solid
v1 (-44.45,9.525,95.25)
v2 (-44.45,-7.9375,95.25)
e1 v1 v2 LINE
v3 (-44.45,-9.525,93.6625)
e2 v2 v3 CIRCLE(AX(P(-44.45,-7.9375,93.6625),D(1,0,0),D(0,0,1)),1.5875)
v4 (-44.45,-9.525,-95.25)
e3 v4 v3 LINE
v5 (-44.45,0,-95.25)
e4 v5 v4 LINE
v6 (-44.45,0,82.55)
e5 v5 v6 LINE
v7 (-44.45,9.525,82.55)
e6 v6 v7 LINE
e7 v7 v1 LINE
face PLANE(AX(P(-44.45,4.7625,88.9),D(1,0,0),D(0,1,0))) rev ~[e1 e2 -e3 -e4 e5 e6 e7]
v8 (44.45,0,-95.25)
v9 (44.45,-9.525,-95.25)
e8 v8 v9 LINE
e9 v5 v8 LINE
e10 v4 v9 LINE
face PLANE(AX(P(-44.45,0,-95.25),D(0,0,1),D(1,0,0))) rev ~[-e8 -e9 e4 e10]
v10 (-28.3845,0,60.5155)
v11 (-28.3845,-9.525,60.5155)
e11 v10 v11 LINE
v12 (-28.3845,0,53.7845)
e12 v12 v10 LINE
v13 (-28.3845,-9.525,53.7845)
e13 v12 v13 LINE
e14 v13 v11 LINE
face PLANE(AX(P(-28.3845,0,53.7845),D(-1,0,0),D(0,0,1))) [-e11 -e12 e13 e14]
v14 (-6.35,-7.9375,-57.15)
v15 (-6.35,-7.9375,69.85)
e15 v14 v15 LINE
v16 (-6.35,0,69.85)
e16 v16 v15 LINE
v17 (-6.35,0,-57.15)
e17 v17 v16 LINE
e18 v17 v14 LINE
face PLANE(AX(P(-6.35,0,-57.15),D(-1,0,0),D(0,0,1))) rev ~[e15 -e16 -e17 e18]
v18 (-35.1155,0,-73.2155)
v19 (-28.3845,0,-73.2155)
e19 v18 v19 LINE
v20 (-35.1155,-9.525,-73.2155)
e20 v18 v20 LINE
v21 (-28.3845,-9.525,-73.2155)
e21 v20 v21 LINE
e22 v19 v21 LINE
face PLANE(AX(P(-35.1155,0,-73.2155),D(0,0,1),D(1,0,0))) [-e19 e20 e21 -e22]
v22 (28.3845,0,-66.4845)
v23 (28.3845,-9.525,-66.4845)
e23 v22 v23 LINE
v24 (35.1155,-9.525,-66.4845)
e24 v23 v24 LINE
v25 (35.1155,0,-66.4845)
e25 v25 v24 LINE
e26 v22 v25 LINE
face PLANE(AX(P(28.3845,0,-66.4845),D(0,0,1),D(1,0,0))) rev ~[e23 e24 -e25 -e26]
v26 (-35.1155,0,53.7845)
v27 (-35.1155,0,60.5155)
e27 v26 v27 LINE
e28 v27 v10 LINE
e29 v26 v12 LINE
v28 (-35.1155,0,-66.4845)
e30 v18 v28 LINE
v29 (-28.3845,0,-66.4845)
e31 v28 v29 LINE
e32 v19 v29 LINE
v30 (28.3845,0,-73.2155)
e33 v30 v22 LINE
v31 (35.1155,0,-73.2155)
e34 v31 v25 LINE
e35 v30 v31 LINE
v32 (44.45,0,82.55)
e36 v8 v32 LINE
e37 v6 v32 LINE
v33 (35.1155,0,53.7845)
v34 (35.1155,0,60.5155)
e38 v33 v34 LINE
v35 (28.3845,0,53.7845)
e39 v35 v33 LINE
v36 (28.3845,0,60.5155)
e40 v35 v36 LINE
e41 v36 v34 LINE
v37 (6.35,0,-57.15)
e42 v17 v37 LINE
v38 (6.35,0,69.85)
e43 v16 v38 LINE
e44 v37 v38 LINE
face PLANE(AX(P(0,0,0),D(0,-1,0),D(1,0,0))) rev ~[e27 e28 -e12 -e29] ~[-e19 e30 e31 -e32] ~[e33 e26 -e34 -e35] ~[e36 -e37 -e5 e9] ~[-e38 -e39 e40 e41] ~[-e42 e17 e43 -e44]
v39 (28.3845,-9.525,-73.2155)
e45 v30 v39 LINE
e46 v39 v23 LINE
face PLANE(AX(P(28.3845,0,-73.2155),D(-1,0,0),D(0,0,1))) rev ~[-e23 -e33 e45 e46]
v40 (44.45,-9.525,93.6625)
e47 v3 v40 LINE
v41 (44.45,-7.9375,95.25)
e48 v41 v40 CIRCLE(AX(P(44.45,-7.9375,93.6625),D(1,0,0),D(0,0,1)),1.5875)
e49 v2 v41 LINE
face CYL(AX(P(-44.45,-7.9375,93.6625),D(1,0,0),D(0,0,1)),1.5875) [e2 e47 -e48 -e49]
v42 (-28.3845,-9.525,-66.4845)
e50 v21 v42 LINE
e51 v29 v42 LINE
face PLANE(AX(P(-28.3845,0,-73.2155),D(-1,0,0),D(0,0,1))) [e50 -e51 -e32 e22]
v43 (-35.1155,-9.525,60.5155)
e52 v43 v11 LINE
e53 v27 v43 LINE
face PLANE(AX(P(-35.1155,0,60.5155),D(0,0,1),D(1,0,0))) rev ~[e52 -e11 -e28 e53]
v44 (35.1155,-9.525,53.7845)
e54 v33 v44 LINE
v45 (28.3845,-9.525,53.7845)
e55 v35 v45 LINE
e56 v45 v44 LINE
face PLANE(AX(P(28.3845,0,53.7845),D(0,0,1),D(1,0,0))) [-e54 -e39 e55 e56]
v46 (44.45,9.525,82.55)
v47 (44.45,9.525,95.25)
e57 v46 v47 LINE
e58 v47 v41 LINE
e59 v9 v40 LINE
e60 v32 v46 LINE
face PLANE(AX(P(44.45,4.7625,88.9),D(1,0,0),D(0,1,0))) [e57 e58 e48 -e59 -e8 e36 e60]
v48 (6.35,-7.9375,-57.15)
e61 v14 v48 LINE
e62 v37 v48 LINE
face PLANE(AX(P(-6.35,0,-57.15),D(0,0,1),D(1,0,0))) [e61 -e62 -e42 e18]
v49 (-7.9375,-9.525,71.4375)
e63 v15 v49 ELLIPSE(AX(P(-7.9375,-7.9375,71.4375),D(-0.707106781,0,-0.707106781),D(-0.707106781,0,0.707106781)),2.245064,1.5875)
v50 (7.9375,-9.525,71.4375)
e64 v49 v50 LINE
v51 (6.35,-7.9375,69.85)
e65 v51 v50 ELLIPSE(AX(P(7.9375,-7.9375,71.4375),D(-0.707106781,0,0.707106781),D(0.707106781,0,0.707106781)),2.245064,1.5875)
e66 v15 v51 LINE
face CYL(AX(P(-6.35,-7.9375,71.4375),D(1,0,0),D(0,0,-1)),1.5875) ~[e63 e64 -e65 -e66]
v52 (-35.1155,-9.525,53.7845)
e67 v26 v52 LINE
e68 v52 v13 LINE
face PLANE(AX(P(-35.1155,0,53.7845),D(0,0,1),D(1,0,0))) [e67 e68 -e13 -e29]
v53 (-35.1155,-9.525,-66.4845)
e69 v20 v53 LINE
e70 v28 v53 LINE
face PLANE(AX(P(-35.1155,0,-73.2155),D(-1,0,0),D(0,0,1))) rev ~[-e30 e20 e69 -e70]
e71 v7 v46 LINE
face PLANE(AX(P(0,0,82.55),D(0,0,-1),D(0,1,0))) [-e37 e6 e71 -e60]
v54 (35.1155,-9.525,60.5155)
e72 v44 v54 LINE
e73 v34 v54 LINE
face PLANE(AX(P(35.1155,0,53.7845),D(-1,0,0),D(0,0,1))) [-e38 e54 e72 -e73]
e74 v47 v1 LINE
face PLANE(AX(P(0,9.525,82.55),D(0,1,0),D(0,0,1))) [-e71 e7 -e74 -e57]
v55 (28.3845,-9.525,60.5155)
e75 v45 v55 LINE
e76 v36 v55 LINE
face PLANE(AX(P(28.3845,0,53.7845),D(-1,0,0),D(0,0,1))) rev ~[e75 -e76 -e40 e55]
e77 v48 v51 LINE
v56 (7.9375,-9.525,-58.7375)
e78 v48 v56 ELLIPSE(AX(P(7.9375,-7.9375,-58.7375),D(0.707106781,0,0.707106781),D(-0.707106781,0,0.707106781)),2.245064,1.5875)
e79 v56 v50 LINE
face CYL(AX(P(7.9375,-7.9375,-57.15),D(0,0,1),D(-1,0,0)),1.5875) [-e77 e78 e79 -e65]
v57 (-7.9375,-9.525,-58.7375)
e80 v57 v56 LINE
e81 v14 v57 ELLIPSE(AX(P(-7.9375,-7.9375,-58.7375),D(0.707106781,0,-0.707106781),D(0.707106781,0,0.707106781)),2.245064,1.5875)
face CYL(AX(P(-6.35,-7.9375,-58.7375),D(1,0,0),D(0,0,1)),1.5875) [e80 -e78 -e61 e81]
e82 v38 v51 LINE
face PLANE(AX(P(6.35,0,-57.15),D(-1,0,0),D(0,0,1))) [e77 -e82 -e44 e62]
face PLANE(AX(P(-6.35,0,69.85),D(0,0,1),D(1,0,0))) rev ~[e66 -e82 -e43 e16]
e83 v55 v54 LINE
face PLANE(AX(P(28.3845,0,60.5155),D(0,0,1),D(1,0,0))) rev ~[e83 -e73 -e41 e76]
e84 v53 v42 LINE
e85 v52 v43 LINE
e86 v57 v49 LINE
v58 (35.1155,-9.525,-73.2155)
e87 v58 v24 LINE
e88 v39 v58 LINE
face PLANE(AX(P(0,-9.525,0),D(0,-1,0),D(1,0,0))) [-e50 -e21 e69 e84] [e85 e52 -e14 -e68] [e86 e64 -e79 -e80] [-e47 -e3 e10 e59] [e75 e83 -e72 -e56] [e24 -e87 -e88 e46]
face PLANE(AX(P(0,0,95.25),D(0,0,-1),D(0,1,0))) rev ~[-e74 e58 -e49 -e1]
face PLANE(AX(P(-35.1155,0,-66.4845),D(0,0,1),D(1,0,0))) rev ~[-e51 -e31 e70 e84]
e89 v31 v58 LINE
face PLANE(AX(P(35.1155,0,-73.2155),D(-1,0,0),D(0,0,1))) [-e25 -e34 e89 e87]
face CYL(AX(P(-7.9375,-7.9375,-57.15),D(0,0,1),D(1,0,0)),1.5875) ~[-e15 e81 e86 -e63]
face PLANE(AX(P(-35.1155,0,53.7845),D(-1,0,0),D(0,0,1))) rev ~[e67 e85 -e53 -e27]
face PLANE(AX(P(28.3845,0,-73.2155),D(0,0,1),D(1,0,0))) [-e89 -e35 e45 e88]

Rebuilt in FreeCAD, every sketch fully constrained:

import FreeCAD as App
import Part
import Sketcher

V = App.Vector
Q = App.Units.Quantity


def edges_at(feature, points):
    """Names of the edges that pass closest to the given points."""
    edges = feature.Shape.Edges
    near = lambda p: min(range(len(edges)), key=lambda i: edges[i].distToShape(Part.Vertex(*p))[0])
    return sorted({f"Edge{near(p) + 1}" for p in points})


def add_polygon(sketch, points):
    """Adds a closed chain of lines whose ends are joined by coincident constraints."""
    first, n = sketch.GeometryCount, len(points)
    for a, b in zip(points, points[1:] + points[:1]):
        sketch.addGeometry(Part.LineSegment(App.Vector(*a, 0), App.Vector(*b, 0)), False)
    for i in range(n):
        sketch.addConstraint(Sketcher.Constraint("Coincident", first + i, 2, first + (i + 1) % n, 1))

doc = App.newDocument("Part")
body = doc.addObject("PartDesign::Body", "Body")

# Sketch on XZ plane
sketch1 = doc.addObject("Sketcher::SketchObject", "Sketch")
body.addObject(sketch1)
sketch1.AttachmentSupport = (doc.XZ_Plane, [""])
sketch1.MapMode = "FlatFace"
add_polygon(sketch1, [(-44.45, 95.25), (-44.45, -95.25), (44.45, -95.25), (44.45, 95.25)])  # lines 0-3
add_polygon(sketch1, [(-28.3845, -73.2155), (-35.1155, -73.2155), (-35.1155, -66.4845), (-28.3845, -66.4845)])  # lines 4-7
add_polygon(sketch1, [(35.1155, -73.2155), (28.3845, -73.2155), (28.3845, -66.4845), (35.1155, -66.4845)])  # lines 8-11
add_polygon(sketch1, [(-28.3845, 53.7845), (-35.1155, 53.7845), (-35.1155, 60.5155), (-28.3845, 60.5155)])  # lines 12-15
add_polygon(sketch1, [(6.35, -57.15), (-6.35, -57.15), (-6.35, 69.85), (6.35, 69.85)])  # lines 16-19
add_polygon(sketch1, [(35.1155, 53.7845), (28.3845, 53.7845), (28.3845, 60.5155), (35.1155, 60.5155)])  # lines 20-23
sketch1.addConstraint(Sketcher.Constraint("Vertical", 0))
sketch1.addConstraint(Sketcher.Constraint("Horizontal", 1))
sketch1.addConstraint(Sketcher.Constraint("Vertical", 2))
sketch1.addConstraint(Sketcher.Constraint("Horizontal", 3))
sketch1.addConstraint(Sketcher.Constraint("Horizontal", 4))
sketch1.addConstraint(Sketcher.Constraint("Vertical", 5))
sketch1.addConstraint(Sketcher.Constraint("Horizontal", 6))
sketch1.addConstraint(Sketcher.Constraint("Vertical", 7))
sketch1.addConstraint(Sketcher.Constraint("Horizontal", 8))
sketch1.addConstraint(Sketcher.Constraint("Vertical", 9))
sketch1.addConstraint(Sketcher.Constraint("Horizontal", 10))
sketch1.addConstraint(Sketcher.Constraint("Vertical", 11))
sketch1.addConstraint(Sketcher.Constraint("Horizontal", 12))
sketch1.addConstraint(Sketcher.Constraint("Vertical", 13))
sketch1.addConstraint(Sketcher.Constraint("Horizontal", 14))
sketch1.addConstraint(Sketcher.Constraint("Vertical", 15))
sketch1.addConstraint(Sketcher.Constraint("Horizontal", 16))
sketch1.addConstraint(Sketcher.Constraint("Vertical", 17))
sketch1.addConstraint(Sketcher.Constraint("Horizontal", 18))
sketch1.addConstraint(Sketcher.Constraint("Vertical", 19))
sketch1.addConstraint(Sketcher.Constraint("Horizontal", 20))
sketch1.addConstraint(Sketcher.Constraint("Vertical", 21))
sketch1.addConstraint(Sketcher.Constraint("Horizontal", 22))
sketch1.addConstraint(Sketcher.Constraint("Vertical", 23))
sketch1.addConstraint(Sketcher.Constraint("Symmetric", 0, 2, 2, 2, -1, 1))
sketch1.addConstraint(Sketcher.Constraint("Symmetric", 7, 2, 8, 2, -2))
sketch1.addConstraint(Sketcher.Constraint("Symmetric", 5, 2, 10, 2, -2))
sketch1.addConstraint(Sketcher.Constraint("Symmetric", 15, 2, 20, 2, -2))
sketch1.addConstraint(Sketcher.Constraint("Symmetric", 13, 2, 22, 2, -2))
sketch1.addConstraint(Sketcher.Constraint("Vertical", 5, 2, 12, 2))
sketch1.addConstraint(Sketcher.Constraint("Vertical", 7, 2, 14, 2))
sketch1.addConstraint(Sketcher.Constraint("Equal", 22, 5))
sketch1.addConstraint(Sketcher.Constraint("Equal", 11, 13))
sketch1.addConstraint(Sketcher.Constraint("DistanceY", 17, 1, 17, 2, Q("5 in")))
sketch1.addConstraint(Sketcher.Constraint("DistanceX", 1, 1, 1, 2, Q("3.5 in")))
sketch1.addConstraint(Sketcher.Constraint("DistanceX", 16, 2, 16, 1, Q("0.5 in")))
sketch1.addConstraint(Sketcher.Constraint("DistanceY", 0, 2, 0, 1, Q("7.5 in")))
sketch1.addConstraint(Sketcher.Constraint("DistanceY", 4, 2, 12, 2, Q("5 in")))
sketch1.addConstraint(Sketcher.Constraint("DistanceY", 17, 2, 3, 2, Q("1 in")))
sketch1.addConstraint(Sketcher.Constraint("DistanceX", 4, 2, 8, 2, Q("2.5 in")))
sketch1.addConstraint(Sketcher.Constraint("DistanceX", 3, 2, 17, 2, Q("1.5 in")))
sketch1.addConstraint(Sketcher.Constraint("DistanceX", 4, 2, 4, 1, Q("0.265 in")))
sketch1.addConstraint(Sketcher.Constraint("DistanceY", 4, 2, -1, 1, Q("2.8825 in")))
pad1 = doc.addObject("PartDesign::Pad", "Pad")
body.addObject(pad1)
pad1.Profile = sketch1
pad1.Length = Q("0.375 in")
doc.recompute()

fillet = doc.addObject("PartDesign::Fillet", "Fillet")
body.addObject(fillet)
fillet.Base = (pad1, edges_at(pad1, [
    (0, -9.525, 95.25),
    (-6.35, -9.525, 6.35),
    (6.35, -9.525, 6.35),
    (0, -9.525, 69.85),
    (0, -9.525, -57.15),
]))
fillet.Radius = Q("0.0625 in")

# Sketch on YZ plane
sketch2 = doc.addObject("Sketcher::SketchObject", "Sketch001")
body.addObject(sketch2)
sketch2.AttachmentSupport = (doc.YZ_Plane, [""])
sketch2.MapMode = "FlatFace"
add_polygon(sketch2, [(0, 95.25), (0, 82.55), (9.525, 82.55), (9.525, 95.25)])  # lines 0-3
sketch2.addConstraint(Sketcher.Constraint("Vertical", 0))
sketch2.addConstraint(Sketcher.Constraint("Horizontal", 1))
sketch2.addConstraint(Sketcher.Constraint("Vertical", 2))
sketch2.addConstraint(Sketcher.Constraint("Horizontal", 3))
sketch2.addConstraint(Sketcher.Constraint("PointOnObject", 0, 2, -2))
sketch2.addConstraint(Sketcher.Constraint("DistanceY", 0, 2, 0, 1, Q("0.5 in")))
sketch2.addConstraint(Sketcher.Constraint("DistanceX", 1, 1, 1, 2, Q("0.375 in")))
sketch2.addConstraint(Sketcher.Constraint("DistanceY", -1, 1, 0, 2, Q("3.25 in")))
pad2 = doc.addObject("PartDesign::Pad", "Pad001")
body.addObject(pad2)
pad2.Profile = sketch2
pad2.Length = Q("3.5 in")
pad2.Midplane = True

doc.recompute()
